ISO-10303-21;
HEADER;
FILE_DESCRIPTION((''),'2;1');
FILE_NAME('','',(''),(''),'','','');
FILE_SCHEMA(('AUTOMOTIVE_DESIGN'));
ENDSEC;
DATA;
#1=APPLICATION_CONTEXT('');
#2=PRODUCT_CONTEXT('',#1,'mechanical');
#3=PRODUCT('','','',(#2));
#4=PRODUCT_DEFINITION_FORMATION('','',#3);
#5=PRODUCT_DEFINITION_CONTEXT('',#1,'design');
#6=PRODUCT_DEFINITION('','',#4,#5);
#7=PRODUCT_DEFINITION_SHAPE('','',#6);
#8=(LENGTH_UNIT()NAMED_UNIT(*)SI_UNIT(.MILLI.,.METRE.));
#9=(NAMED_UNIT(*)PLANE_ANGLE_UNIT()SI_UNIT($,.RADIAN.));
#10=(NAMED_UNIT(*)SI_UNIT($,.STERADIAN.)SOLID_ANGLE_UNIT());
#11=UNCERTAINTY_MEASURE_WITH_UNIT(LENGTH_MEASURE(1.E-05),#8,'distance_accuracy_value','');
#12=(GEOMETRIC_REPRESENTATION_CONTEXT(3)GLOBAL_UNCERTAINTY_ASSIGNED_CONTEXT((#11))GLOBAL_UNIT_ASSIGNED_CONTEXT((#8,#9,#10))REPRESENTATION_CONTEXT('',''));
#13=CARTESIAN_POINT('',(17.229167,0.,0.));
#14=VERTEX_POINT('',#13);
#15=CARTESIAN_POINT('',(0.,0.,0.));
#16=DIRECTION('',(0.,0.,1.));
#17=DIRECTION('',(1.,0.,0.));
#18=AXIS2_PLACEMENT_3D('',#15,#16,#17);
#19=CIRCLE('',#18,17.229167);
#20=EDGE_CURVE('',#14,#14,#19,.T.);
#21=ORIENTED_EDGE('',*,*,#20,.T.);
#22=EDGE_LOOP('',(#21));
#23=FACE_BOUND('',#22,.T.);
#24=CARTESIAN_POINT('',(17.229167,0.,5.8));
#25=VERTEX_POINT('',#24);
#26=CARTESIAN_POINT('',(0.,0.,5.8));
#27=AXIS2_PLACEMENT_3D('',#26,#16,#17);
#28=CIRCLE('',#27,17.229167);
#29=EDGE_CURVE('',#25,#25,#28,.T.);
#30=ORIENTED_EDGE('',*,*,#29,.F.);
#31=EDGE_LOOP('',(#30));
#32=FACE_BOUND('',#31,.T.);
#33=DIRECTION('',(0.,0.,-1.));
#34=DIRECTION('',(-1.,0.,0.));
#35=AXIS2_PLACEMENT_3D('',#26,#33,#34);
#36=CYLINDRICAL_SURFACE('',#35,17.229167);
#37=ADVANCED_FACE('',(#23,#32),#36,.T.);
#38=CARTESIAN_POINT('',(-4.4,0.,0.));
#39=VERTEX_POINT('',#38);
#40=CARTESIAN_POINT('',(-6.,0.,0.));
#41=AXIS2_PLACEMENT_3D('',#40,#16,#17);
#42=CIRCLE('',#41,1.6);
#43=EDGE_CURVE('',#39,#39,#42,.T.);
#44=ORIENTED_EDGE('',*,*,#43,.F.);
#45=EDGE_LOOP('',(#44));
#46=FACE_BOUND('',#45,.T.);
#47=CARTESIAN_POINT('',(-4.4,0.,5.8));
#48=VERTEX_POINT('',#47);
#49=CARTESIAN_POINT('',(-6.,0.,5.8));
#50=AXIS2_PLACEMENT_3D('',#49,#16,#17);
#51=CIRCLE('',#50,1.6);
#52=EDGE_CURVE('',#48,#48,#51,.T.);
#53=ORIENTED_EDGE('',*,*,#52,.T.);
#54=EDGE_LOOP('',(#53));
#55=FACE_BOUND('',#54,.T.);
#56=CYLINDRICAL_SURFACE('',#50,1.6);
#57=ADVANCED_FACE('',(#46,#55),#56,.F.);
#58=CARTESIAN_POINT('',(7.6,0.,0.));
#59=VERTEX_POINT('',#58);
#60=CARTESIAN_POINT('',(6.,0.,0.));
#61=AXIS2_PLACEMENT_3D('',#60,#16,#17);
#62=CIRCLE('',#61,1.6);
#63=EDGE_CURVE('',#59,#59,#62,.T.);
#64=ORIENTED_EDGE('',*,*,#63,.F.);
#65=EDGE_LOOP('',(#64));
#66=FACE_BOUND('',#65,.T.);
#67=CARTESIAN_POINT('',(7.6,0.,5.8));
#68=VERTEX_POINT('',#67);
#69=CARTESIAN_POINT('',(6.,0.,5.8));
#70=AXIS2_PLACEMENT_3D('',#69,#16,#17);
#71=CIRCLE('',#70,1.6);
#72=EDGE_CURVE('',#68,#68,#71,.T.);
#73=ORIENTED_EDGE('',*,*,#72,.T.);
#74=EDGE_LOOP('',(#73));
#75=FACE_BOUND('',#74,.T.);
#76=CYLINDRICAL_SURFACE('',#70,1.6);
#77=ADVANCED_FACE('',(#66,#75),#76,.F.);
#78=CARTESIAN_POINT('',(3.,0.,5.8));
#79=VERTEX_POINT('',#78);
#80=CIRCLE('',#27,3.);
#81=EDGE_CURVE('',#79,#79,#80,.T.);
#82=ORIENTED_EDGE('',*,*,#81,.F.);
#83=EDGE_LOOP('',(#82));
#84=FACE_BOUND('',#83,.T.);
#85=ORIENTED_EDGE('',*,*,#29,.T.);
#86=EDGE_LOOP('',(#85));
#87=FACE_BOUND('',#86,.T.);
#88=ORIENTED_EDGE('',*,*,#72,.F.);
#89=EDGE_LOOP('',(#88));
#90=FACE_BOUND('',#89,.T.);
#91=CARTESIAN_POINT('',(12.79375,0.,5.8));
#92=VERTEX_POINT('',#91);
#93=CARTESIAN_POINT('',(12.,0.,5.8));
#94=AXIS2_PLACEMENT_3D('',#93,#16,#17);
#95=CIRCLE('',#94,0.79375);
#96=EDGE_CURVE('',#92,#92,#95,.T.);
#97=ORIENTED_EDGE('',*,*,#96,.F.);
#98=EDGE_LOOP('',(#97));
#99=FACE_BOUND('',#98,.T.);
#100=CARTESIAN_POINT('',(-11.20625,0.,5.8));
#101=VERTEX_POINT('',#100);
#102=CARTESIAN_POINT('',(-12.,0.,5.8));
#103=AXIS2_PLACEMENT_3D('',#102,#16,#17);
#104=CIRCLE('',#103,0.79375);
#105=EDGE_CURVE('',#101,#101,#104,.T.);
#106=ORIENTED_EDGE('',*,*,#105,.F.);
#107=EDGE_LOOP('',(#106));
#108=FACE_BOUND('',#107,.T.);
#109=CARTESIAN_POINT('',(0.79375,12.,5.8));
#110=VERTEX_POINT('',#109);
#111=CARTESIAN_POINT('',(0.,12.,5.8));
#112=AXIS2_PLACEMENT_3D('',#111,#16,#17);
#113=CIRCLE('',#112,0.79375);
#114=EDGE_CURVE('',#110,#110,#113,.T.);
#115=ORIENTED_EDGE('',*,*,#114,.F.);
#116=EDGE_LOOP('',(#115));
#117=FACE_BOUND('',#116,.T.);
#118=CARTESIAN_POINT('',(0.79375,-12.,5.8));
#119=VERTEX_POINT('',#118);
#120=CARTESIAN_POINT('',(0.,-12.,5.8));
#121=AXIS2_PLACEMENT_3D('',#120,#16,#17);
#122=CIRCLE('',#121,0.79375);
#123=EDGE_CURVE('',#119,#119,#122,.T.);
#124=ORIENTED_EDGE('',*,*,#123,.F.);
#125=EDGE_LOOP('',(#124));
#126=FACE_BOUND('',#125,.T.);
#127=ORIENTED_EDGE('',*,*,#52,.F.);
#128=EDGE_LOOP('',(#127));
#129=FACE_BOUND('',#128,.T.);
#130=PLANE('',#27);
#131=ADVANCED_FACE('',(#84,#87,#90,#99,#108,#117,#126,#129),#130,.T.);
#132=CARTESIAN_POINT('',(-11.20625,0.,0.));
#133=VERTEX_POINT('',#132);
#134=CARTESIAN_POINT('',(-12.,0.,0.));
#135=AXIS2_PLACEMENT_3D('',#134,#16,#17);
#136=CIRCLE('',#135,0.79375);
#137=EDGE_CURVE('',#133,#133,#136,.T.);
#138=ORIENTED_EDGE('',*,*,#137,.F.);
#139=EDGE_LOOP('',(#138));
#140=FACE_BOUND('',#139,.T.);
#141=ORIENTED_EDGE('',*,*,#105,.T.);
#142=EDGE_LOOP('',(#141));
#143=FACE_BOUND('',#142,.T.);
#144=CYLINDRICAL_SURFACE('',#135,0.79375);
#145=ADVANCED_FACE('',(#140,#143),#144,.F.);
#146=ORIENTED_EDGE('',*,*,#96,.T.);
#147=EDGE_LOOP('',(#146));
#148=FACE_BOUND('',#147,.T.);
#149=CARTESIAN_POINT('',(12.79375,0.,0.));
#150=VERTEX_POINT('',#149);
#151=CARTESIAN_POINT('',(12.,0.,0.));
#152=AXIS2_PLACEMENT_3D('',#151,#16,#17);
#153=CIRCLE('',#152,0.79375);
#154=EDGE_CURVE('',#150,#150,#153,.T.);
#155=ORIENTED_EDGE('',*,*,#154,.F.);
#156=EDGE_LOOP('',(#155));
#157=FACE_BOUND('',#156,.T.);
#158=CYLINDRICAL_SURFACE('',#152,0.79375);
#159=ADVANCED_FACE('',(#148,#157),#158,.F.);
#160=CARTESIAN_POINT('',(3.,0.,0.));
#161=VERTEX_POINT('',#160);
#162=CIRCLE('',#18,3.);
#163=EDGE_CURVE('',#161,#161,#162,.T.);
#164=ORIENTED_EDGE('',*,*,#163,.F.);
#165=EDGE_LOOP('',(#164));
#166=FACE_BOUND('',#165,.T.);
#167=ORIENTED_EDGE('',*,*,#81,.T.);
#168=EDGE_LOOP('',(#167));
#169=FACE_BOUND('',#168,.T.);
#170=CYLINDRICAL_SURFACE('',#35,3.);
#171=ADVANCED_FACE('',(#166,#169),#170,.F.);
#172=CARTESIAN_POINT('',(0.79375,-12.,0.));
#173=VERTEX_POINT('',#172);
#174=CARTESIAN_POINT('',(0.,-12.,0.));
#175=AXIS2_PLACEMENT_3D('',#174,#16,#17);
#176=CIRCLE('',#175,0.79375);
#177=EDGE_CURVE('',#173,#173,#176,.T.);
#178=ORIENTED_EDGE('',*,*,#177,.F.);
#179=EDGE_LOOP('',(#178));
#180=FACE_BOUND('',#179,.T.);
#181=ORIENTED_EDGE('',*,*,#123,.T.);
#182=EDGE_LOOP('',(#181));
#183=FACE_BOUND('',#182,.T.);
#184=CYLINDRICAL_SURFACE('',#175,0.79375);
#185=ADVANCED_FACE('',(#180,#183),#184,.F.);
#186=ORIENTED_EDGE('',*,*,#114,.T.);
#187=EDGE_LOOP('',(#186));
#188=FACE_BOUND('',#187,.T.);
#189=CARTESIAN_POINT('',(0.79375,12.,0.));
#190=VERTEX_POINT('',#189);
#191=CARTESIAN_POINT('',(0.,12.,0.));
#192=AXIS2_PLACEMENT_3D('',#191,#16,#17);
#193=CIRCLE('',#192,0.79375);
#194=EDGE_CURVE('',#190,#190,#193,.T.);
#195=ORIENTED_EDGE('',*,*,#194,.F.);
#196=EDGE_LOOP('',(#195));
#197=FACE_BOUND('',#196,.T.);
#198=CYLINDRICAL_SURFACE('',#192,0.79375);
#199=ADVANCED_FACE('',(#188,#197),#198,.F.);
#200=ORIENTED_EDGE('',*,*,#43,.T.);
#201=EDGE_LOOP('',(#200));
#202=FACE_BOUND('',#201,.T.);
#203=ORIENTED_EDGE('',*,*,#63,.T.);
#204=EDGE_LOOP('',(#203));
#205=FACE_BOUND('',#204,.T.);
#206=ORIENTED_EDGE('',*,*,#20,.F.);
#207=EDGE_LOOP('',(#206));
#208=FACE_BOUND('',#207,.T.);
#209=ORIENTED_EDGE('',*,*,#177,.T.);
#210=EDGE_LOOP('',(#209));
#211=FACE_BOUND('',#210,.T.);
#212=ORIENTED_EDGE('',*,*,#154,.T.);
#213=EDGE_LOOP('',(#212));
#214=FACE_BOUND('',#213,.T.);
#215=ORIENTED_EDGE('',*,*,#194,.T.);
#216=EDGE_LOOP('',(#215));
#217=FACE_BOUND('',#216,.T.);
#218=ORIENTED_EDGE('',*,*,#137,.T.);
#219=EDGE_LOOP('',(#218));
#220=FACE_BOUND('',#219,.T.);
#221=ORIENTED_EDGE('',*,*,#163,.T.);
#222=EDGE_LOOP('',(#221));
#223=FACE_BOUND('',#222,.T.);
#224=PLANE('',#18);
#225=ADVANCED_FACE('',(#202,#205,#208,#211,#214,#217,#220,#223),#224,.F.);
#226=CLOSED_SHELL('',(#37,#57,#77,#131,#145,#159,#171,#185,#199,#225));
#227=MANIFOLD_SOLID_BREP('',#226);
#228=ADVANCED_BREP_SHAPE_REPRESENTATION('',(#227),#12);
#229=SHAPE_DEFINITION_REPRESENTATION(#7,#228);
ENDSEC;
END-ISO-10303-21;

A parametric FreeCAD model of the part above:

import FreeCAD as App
import Part
import Sketcher
Q = App.Units.Quantity

doc = App.newDocument("Part")
body = doc.addObject("PartDesign::Body", "Body")

sketch1 = doc.addObject("Sketcher::SketchObject", "Sketch")
body.addObject(sketch1)
sketch1.AttachmentSupport = (doc.XY_Plane, [""])
sketch1.MapMode = "FlatFace"
sketch1.addGeometry(Part.Circle(App.Vector(0, 0, 0), App.Vector(0, 0, 1), 17.2), False)
sketch1.addGeometry(Part.Circle(App.Vector(0, 0, 0), App.Vector(0, 0, 1), 3), False)
sketch1.addConstraint(Sketcher.Constraint("Coincident", 0, 3, -1, 1))
sketch1.addConstraint(Sketcher.Constraint("Coincident", 1, 3, -1, 1))
sketch1.addConstraint(Sketcher.Constraint("Diameter", 1, Q("6 mm")))
sketch1.addConstraint(Sketcher.Constraint("Diameter", 0, Q("34.458333 mm")))
pad1 = doc.addObject("PartDesign::Pad", "Pad")
body.addObject(pad1)
pad1.Profile = sketch1
pad1.Length = 5.8

sketch2 = doc.addObject("Sketcher::SketchObject", "Sketch001")
body.addObject(sketch2)
sketch2.AttachmentSupport = (doc.XY_Plane, [""])
sketch2.MapMode = "FlatFace"
sketch2.AttachmentOffset = App.Placement(App.Vector(0, 0, 5.8), App.Rotation())
sketch2.addGeometry(Part.Circle(App.Vector(0, 12, 0), App.Vector(0, 0, 1), 0.8), False)
sketch2.addGeometry(Part.Circle(App.Vector(12, 0, 0), App.Vector(0, 0, 1), 0.8), False)
sketch2.addGeometry(Part.Circle(App.Vector(0, -12, 0), App.Vector(0, 0, 1), 0.8), False)
sketch2.addGeometry(Part.Circle(App.Vector(-12, 0, 0), App.Vector(0, 0, 1), 0.8), False)
sketch2.addConstraint(Sketcher.Constraint("Equal", 0, 1))
sketch2.addConstraint(Sketcher.Constraint("Equal", 1, 2))
sketch2.addConstraint(Sketcher.Constraint("Equal", 2, 3))
sketch2.addConstraint(Sketcher.Constraint("Symmetric", 0, 3, 2, 3, -1, 1))
sketch2.addConstraint(Sketcher.Constraint("Symmetric", 1, 3, 3, 3, -1, 1))
sketch2.addConstraint(Sketcher.Constraint("PointOnObject", 0, 3, -2))
sketch2.addConstraint(Sketcher.Constraint("PointOnObject", 1, 3, -1))
sketch2.addConstraint(Sketcher.Constraint("DistanceY", -1, 1, 0, 3, Q("12 mm")))
sketch2.addConstraint(Sketcher.Constraint("DistanceX", -1, 1, 1, 3, Q("12 mm")))
sketch2.addConstraint(Sketcher.Constraint("Diameter", 0, Q("1.5875 mm")))
pocket1 = doc.addObject("PartDesign::Pocket", "Pocket")
body.addObject(pocket1)
pocket1.Profile = sketch2
pocket1.Type = "ThroughAll"

sketch3 = doc.addObject("Sketcher::SketchObject", "Sketch002")
body.addObject(sketch3)
sketch3.AttachmentSupport = (doc.XY_Plane, [""])
sketch3.MapMode = "FlatFace"
sketch3.AttachmentOffset = App.Placement(App.Vector(0, 0, 5.8), App.Rotation())
sketch3.addGeometry(Part.Circle(App.Vector(-6, 0, 0), App.Vector(0, 0, 1), 1.6), False)
sketch3.addGeometry(Part.Circle(App.Vector(6, 0, 0), App.Vector(0, 0, 1), 1.6), False)
sketch3.addConstraint(Sketcher.Constraint("Equal", 0, 1))
sketch3.addConstraint(Sketcher.Constraint("Symmetric", 0, 3, 1, 3, -1, 1))
sketch3.addConstraint(Sketcher.Constraint("PointOnObject", 0, 3, -1))
sketch3.addConstraint(Sketcher.Constraint("Diameter", 0, Q("3.2 mm")))
sketch3.addConstraint(Sketcher.Constraint("DistanceX", 0, 3, -1, 1, Q("6 mm")))
doc.recompute()
hole = doc.addObject("PartDesign::Hole", "Hole")
body.addObject(hole)
hole.Profile = sketch3
hole.ThreadType = "None"
hole.Diameter = 3.2
hole.DepthType = "Dimension"
hole.Depth = 12.7
hole.DrillPoint = "Angled"
hole.DrillPointAngle = 118

doc.recompute()
